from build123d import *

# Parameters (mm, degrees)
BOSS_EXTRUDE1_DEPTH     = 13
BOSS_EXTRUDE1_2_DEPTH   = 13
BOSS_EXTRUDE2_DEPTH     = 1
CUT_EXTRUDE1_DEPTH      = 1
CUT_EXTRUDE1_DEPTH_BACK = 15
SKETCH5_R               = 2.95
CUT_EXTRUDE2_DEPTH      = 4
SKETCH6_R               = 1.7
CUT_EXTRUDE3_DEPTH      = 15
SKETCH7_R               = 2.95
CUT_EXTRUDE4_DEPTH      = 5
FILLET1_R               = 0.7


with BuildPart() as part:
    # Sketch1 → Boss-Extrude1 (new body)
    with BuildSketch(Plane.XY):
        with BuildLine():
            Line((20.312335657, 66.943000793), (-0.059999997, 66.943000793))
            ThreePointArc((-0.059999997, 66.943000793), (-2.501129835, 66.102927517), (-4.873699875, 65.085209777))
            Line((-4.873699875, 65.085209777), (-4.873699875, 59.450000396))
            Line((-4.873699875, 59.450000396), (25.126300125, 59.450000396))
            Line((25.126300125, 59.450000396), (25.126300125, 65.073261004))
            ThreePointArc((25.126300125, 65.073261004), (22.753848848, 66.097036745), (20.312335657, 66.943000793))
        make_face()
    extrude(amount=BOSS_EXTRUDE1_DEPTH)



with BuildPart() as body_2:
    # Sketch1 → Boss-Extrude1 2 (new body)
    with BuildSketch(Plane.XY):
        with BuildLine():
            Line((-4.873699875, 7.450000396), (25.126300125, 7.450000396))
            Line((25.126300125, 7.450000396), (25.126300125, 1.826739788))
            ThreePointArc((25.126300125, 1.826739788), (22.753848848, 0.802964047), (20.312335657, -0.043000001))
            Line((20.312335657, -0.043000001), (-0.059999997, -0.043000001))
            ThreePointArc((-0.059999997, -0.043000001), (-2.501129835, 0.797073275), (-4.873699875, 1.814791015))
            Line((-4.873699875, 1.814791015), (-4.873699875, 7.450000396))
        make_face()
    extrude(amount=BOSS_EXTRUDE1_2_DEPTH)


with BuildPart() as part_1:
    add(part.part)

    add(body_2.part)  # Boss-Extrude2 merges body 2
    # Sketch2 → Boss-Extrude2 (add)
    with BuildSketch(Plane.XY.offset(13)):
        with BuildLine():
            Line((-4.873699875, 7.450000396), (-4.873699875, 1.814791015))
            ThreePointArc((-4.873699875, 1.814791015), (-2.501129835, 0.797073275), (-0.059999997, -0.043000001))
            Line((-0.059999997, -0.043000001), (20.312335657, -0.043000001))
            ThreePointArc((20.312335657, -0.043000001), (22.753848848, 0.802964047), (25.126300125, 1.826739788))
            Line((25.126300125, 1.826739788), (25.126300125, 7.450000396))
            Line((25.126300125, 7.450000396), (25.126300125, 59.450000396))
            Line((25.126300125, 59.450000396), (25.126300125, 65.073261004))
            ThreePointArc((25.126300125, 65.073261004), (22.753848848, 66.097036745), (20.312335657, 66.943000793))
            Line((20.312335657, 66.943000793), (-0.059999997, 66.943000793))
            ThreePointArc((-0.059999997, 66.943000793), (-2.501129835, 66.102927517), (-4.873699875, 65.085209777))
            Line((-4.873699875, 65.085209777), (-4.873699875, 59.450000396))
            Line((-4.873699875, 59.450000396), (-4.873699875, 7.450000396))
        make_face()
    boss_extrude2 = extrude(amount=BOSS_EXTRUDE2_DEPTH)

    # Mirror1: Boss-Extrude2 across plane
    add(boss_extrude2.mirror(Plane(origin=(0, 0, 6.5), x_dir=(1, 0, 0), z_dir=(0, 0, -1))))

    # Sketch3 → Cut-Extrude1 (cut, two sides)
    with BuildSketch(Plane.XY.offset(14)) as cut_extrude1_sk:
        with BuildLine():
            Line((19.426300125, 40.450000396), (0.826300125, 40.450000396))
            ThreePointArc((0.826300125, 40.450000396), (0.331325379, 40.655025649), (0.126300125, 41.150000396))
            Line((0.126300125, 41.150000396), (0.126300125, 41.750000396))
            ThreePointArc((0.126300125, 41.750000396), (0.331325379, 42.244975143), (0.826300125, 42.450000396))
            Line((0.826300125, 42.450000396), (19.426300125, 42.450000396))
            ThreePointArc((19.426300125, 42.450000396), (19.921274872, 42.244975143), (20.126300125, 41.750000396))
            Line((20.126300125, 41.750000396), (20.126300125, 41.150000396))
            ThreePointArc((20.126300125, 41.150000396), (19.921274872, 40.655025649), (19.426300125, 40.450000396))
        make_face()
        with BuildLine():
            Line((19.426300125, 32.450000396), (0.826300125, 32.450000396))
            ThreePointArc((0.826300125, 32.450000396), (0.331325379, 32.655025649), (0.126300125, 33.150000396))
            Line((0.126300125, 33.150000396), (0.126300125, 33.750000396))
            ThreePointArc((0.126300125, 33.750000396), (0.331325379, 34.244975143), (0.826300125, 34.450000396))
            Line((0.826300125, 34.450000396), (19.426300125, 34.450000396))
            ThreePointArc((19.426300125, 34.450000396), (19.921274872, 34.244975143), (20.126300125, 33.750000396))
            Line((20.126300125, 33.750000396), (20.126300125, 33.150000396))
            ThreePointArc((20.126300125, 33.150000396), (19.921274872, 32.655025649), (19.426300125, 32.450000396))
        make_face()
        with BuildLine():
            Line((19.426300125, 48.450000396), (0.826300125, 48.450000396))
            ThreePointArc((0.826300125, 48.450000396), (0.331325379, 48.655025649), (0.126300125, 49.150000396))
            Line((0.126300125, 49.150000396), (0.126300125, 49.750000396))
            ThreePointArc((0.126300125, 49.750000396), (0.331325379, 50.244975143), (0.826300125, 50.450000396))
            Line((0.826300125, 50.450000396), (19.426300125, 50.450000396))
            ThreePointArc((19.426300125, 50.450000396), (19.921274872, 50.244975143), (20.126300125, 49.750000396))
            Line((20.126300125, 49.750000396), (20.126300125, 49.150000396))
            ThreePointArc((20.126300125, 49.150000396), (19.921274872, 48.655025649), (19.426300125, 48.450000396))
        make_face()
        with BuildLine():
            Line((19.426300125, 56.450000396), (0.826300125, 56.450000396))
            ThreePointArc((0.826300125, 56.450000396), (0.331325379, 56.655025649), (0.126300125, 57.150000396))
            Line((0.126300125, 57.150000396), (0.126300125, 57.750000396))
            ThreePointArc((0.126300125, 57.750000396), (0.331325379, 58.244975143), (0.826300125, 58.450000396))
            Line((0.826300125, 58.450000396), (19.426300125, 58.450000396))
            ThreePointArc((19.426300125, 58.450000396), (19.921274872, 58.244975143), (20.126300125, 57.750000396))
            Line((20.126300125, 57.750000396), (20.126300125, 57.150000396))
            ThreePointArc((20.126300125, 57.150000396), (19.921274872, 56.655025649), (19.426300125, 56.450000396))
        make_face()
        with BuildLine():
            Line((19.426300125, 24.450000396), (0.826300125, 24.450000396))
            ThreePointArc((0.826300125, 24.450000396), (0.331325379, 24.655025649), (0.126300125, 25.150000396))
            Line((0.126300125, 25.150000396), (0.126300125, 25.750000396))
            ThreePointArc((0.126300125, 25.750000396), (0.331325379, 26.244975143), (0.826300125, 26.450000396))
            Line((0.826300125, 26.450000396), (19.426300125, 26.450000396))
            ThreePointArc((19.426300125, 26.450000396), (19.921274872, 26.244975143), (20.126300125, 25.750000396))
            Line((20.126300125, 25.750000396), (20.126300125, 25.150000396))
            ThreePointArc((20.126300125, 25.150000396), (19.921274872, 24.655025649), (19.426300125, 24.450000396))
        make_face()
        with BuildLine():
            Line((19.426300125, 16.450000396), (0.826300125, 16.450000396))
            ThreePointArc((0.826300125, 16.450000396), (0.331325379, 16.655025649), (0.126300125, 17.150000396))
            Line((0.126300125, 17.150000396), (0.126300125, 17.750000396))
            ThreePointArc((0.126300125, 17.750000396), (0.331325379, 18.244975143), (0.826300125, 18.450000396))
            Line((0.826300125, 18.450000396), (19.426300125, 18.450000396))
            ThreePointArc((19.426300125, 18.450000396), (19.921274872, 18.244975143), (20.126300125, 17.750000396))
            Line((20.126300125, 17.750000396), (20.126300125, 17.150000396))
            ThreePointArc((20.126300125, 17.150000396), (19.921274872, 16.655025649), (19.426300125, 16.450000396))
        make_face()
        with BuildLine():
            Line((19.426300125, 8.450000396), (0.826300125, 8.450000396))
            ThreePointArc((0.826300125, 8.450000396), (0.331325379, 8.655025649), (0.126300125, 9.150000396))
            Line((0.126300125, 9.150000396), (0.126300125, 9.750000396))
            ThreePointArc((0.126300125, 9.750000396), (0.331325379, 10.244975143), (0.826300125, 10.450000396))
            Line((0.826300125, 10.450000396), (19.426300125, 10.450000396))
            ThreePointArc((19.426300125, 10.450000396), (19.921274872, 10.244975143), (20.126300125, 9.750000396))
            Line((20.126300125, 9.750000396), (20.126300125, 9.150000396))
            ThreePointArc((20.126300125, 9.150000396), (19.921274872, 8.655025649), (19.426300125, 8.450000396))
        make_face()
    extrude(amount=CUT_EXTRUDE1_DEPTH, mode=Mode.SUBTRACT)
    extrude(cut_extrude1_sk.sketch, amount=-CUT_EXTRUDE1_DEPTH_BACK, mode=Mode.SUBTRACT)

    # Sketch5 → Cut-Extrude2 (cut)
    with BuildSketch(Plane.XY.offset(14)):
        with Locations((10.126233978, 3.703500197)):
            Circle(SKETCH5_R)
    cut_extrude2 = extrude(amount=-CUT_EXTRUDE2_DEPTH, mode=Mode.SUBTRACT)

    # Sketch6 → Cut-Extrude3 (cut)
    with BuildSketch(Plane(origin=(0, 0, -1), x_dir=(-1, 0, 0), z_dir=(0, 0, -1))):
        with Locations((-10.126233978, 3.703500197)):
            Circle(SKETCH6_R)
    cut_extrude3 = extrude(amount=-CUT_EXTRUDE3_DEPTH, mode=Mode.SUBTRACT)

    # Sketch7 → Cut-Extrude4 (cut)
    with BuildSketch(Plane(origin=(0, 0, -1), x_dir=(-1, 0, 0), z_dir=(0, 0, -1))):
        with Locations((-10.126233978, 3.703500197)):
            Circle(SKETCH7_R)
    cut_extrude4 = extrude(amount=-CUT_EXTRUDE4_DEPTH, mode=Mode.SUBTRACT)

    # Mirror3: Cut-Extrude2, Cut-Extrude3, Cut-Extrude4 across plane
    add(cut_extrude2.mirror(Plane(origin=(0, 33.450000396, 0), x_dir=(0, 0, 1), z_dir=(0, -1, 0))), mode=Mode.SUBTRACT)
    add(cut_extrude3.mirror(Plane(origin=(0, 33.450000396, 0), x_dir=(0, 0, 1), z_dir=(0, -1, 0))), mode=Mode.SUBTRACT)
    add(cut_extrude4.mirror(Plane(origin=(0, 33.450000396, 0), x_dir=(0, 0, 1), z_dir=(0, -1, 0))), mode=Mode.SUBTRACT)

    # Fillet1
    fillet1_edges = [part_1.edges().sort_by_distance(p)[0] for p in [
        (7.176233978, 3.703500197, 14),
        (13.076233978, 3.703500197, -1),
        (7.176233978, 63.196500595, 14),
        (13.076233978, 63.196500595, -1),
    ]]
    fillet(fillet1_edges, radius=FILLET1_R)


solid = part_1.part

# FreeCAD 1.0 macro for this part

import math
import FreeCAD as App
import Part
import Sketcher
from FreeCAD import Vector
Q = App.Units.Quantity


def edges_at(feature, points):
    """Names of the edges that pass closest to the given points."""
    edges = feature.Shape.Edges
    near = lambda p: min(range(len(edges)), key=lambda i: edges[i].distToShape(Part.Vertex(*p))[0])
    return sorted({f"Edge{near(p) + 1}" for p in points})

doc = App.newDocument("Part")
body = doc.addObject("PartDesign::Body", "Body")

# Sketch on XY plane
sketch1 = body.newObject("Sketcher::SketchObject", "Sketch")
sketch1.AttachmentSupport = (doc.getObject("XY_Plane"), [""])
sketch1.MapMode = "FlatFace"
sketch1.addGeometry([
    Part.LineSegment(Vector(20, 67, 0), Vector(0, 67, 0)),  # 0
    Part.ArcOfCircle(Part.Circle(Vector(10, 33, 0), Vector(0, 0, 1), 35), math.radians(106.88), math.radians(115.33)),  # 1
    Part.LineSegment(Vector(-5, 65, 0), Vector(-5, 59, 0)),  # 2
    Part.LineSegment(Vector(-5, 59, 0), Vector(25, 59, 0)),  # 3
    Part.LineSegment(Vector(25, 59, 0), Vector(25, 65, 0)),  # 4
    Part.ArcOfCircle(Part.Circle(Vector(10, 33, 0), Vector(0, 0, 1), 35), math.radians(64.54), math.radians(73)),  # 5
], False)
sketch1.addConstraint([
    Sketcher.Constraint("Coincident", 0, 2, 1, 1),
    Sketcher.Constraint("Coincident", 1, 2, 2, 1),
    Sketcher.Constraint("Coincident", 2, 2, 3, 1),
    Sketcher.Constraint("Coincident", 3, 2, 4, 1),
    Sketcher.Constraint("Coincident", 4, 2, 5, 1),
    Sketcher.Constraint("Coincident", 5, 2, 0, 1),
    Sketcher.Constraint("Horizontal", 0),
    Sketcher.Constraint("Vertical", 2),
    Sketcher.Constraint("Horizontal", 3),
    Sketcher.Constraint("Vertical", 4),
    Sketcher.Constraint("Equal", 1, 5),
    Sketcher.Constraint("DistanceX", 3, 1, 3, 2, Q("30 mm")),
    Sketcher.Constraint("DistanceX", 0, 2, -1, 1, Q("0.06 mm")),
    Sketcher.Constraint("DistanceY", -1, 1, 2, 2, Q("59.45 mm")),
    Sketcher.Constraint("Radius", 1, Q("35.001581 mm")),
    Sketcher.Constraint("DistanceY", -1, 1, 0, 2, Q("66.943001 mm")),
    Sketcher.Constraint("DistanceY", 2, 2, 2, 1, Q("5.635209 mm")),
    Sketcher.Constraint("DistanceY", 4, 1, 4, 2, Q("5.623261 mm")),
    Sketcher.Constraint("DistanceX", 1, 2, -1, 1, Q("4.8737 mm")),
    Sketcher.Constraint("DistanceX", 0, 2, 0, 1, Q("20.372336 mm")),
])
pad1 = body.newObject("PartDesign::Pad", "Pad")
pad1.Profile = sketch1
pad1.Length = 13
body2 = doc.addObject("PartDesign::Body", "Body001")

# Sketch on XY plane
sketch2 = body2.newObject("Sketcher::SketchObject", "Sketch001")
sketch2.AttachmentSupport = (doc.getObject("XY_Plane001"), [""])
sketch2.MapMode = "FlatFace"
sketch2.addGeometry([
    Part.LineSegment(Vector(25, 7, 0), Vector(-5, 7, 0)),  # 0
    Part.LineSegment(Vector(-5, 7, 0), Vector(-5, 2, 0)),  # 1
    Part.ArcOfCircle(Part.Circle(Vector(10, 33, 0), Vector(0, 0, 1), 35), math.radians(-115.33), math.radians(-106.88)),  # 2
    Part.LineSegment(Vector(0, 0, 0), Vector(20, 0, 0)),  # 3
    Part.ArcOfCircle(Part.Circle(Vector(10, 33, 0), Vector(0, 0, 1), 35), math.radians(-73), math.radians(-64.54)),  # 4
    Part.LineSegment(Vector(25, 2, 0), Vector(25, 7, 0)),  # 5
], False)
sketch2.addConstraint([
    Sketcher.Constraint("Coincident", 0, 2, 1, 1),
    Sketcher.Constraint("Coincident", 1, 2, 2, 1),
    Sketcher.Constraint("Coincident", 2, 2, 3, 1),
    Sketcher.Constraint("Coincident", 3, 2, 4, 1),
    Sketcher.Constraint("Coincident", 4, 2, 5, 1),
    Sketcher.Constraint("Coincident", 5, 2, 0, 1),
    Sketcher.Constraint("Horizontal", 0),
    Sketcher.Constraint("Vertical", 1),
    Sketcher.Constraint("Horizontal", 3),
    Sketcher.Constraint("Vertical", 5),
    Sketcher.Constraint("Equal", 2, 4),
    Sketcher.Constraint("DistanceX", 0, 2, 0, 1, Q("30 mm")),
    Sketcher.Constraint("DistanceY", -1, 1, 0, 2, Q("7.45 mm")),
    Sketcher.Constraint("DistanceX", 2, 2, -1, 1, Q("0.06 mm")),
    Sketcher.Constraint("Radius", 2, Q("35.001581 mm")),
    Sketcher.Constraint("DistanceY", 2, 2, -1, 1, Q("0.043 mm")),
    Sketcher.Constraint("DistanceY", 1, 2, 1, 1, Q("5.635209 mm")),
    Sketcher.Constraint("DistanceY", 5, 1, 5, 2, Q("5.623261 mm")),
    Sketcher.Constraint("DistanceX", 0, 2, -1, 1, Q("4.8737 mm")),
    Sketcher.Constraint("DistanceX", 4, 3, 3, 2, Q("10.230799 mm")),
])
pad2 = body2.newObject("PartDesign::Pad", "Pad001")
pad2.Profile = sketch2
pad2.Length = 13
body.AllowCompound = True
doc.recompute()

boolean = body.newObject("PartDesign::Boolean", "Boolean")
boolean.Type = "Fuse"
boolean.addObjects([body2])

# Sketch on XY plane
sketch3 = body.newObject("Sketcher::SketchObject", "Sketch002")
sketch3.AttachmentSupport = (doc.getObject("XY_Plane"), [""])
sketch3.MapMode = "FlatFace"
sketch3.AttachmentOffset = App.Placement(Vector(0, 0, 13), App.Rotation())
sketch3.addGeometry([
    Part.ArcOfCircle(Part.Circle(Vector(10, 33, 0), Vector(0, 0, 1), 35), math.radians(-115.33), math.radians(-106.88)),  # 0
    Part.LineSegment(Vector(0, 0, 0), Vector(20, 0, 0)),  # 1
    Part.ArcOfCircle(Part.Circle(Vector(10, 33, 0), Vector(0, 0, 1), 35), math.radians(-73), math.radians(-64.54)),  # 2
    Part.LineSegment(Vector(25, 2, 0), Vector(25, 65, 0)),  # 3
    Part.ArcOfCircle(Part.Circle(Vector(10, 33, 0), Vector(0, 0, 1), 35), math.radians(64.54), math.radians(73)),  # 4
    Part.LineSegment(Vector(20, 67, 0), Vector(0, 67, 0)),  # 5
    Part.ArcOfCircle(Part.Circle(Vector(10, 33, 0), Vector(0, 0, 1), 35), math.radians(106.88), math.radians(115.33)),  # 6
    Part.LineSegment(Vector(-5, 65, 0), Vector(-5, 2, 0)),  # 7
], False)
sketch3.addConstraint([
    Sketcher.Constraint("Coincident", 0, 2, 1, 1),
    Sketcher.Constraint("Coincident", 1, 2, 2, 1),
    Sketcher.Constraint("Coincident", 2, 2, 3, 1),
    Sketcher.Constraint("Coincident", 3, 2, 4, 1),
    Sketcher.Constraint("Coincident", 4, 2, 5, 1),
    Sketcher.Constraint("Coincident", 5, 2, 6, 1),
    Sketcher.Constraint("Coincident", 6, 2, 7, 1),
    Sketcher.Constraint("Coincident", 7, 2, 0, 1),
    Sketcher.Constraint("Horizontal", 1),
    Sketcher.Constraint("Vertical", 3),
    Sketcher.Constraint("Horizontal", 5),
    Sketcher.Constraint("Vertical", 7),
    Sketcher.Constraint("Equal", 0, 2),
    Sketcher.Constraint("Equal", 2, 4),
    Sketcher.Constraint("Equal", 4, 6),
    Sketcher.Constraint("Vertical", 2, 3, 4, 3),
    Sketcher.Constraint("Vertical", 0, 3, 6, 3),
    Sketcher.Constraint("Vertical", 1, 2, 4, 2),
    Sketcher.Constraint("Vertical", 0, 2, 5, 2),
    Sketcher.Constraint("DistanceX", 6, 2, 3, 2, Q("30 mm")),
    Sketcher.Constraint("DistanceX", 0, 2, -1, 1, Q("0.06 mm")),
    Sketcher.Constraint("Radius", 0, Q("35.001581 mm")),
    Sketcher.Constraint("DistanceY", 0, 2, -1, 1, Q("0.043 mm")),
    Sketcher.Constraint("DistanceY", -1, 1, 4, 2, Q("66.943001 mm")),
    Sketcher.Constraint("DistanceY", 3, 1, 3, 2, Q("63.246521 mm")),
    Sketcher.Constraint("DistanceY", 7, 2, 7, 1, Q("63.270419 mm")),
    Sketcher.Constraint("DistanceX", -1, 1, 2, 2, Q("25.1263 mm")),
    Sketcher.Constraint("DistanceX", 2, 3, 1, 2, Q("10.230799 mm")),
])
pad3 = body.newObject("PartDesign::Pad", "Pad002")
pad3.Profile = sketch3
pad3.Length = 1
doc.recompute()

datumplane = body.newObject("PartDesign::Plane", "DatumPlane")
datumplane.AttachmentSupport = (doc.getObject("XY_Plane"), [""])
datumplane.MapMode = "FlatFace"
datumplane.AttachmentOffset = App.Placement(Vector(0, 0, 6.5), App.Rotation())
mirrored = body.newObject("PartDesign::Mirrored", "Mirrored")
mirrored.Originals = [pad3]
mirrored.MirrorPlane = (datumplane, [""])
body.Tip = mirrored

# Sketch on XY plane
sketch4 = body.newObject("Sketcher::SketchObject", "Sketch003")
sketch4.AttachmentSupport = (doc.getObject("XY_Plane"), [""])
sketch4.MapMode = "FlatFace"
sketch4.AttachmentOffset = App.Placement(Vector(0, 0, 14), App.Rotation())
sketch4.addGeometry([
    Part.LineSegment(Vector(0.8, 40.5, 0), Vector(19.4, 40.5, 0)),  # 0
    Part.ArcOfCircle(Part.Circle(Vector(19.4, 41.2, 0), Vector(0, 0, 1), 0.7), math.radians(-90), math.radians(0)),  # 1
    Part.LineSegment(Vector(20.1, 41.2, 0), Vector(20.1, 41.8, 0)),  # 2
    Part.ArcOfCircle(Part.Circle(Vector(19.4, 41.8, 0), Vector(0, 0, 1), 0.7), math.radians(0), math.radians(90)),  # 3
    Part.LineSegment(Vector(19.4, 42.5, 0), Vector(0.8, 42.5, 0)),  # 4
    Part.ArcOfCircle(Part.Circle(Vector(0.8, 41.8, 0), Vector(0, 0, 1), 0.7), math.radians(90), math.radians(180)),  # 5
    Part.LineSegment(Vector(0.1, 41.8, 0), Vector(0.1, 41.2, 0)),  # 6
    Part.ArcOfCircle(Part.Circle(Vector(0.8, 41.2, 0), Vector(0, 0, 1), 0.7), math.radians(-180), math.radians(-90)),  # 7
    Part.LineSegment(Vector(0.8, 32.5, 0), Vector(19.4, 32.5, 0)),  # 8
    Part.ArcOfCircle(Part.Circle(Vector(19.4, 33.2, 0), Vector(0, 0, 1), 0.7), math.radians(-90), math.radians(0)),  # 9
    Part.LineSegment(Vector(20.1, 33.2, 0), Vector(20.1, 33.8, 0)),  # 10
    Part.ArcOfCircle(Part.Circle(Vector(19.4, 33.8, 0), Vector(0, 0, 1), 0.7), math.radians(0), math.radians(90)),  # 11
    Part.LineSegment(Vector(19.4, 34.5, 0), Vector(0.8, 34.5, 0)),  # 12
    Part.ArcOfCircle(Part.Circle(Vector(0.8, 33.8, 0), Vector(0, 0, 1), 0.7), math.radians(90), math.radians(180)),  # 13
    Part.LineSegment(Vector(0.1, 33.8, 0), Vector(0.1, 33.2, 0)),  # 14
    Part.ArcOfCircle(Part.Circle(Vector(0.8, 33.2, 0), Vector(0, 0, 1), 0.7), math.radians(-180), math.radians(-90)),  # 15
    Part.LineSegment(Vector(0.8, 48.5, 0), Vector(19.4, 48.5, 0)),  # 16
    Part.ArcOfCircle(Part.Circle(Vector(19.4, 49.2, 0), Vector(0, 0, 1), 0.7), math.radians(-90), math.radians(0)),  # 17
    Part.LineSegment(Vector(20.1, 49.2, 0), Vector(20.1, 49.8, 0)),  # 18
    Part.ArcOfCircle(Part.Circle(Vector(19.4, 49.8, 0), Vector(0, 0, 1), 0.7), math.radians(0), math.radians(90)),  # 19
    Part.LineSegment(Vector(19.4, 50.5, 0), Vector(0.8, 50.5, 0)),  # 20
    Part.ArcOfCircle(Part.Circle(Vector(0.8, 49.8, 0), Vector(0, 0, 1), 0.7), math.radians(90), math.radians(180)),  # 21
    Part.LineSegment(Vector(0.1, 49.8, 0), Vector(0.1, 49.2, 0)),  # 22
    Part.ArcOfCircle(Part.Circle(Vector(0.8, 49.2, 0), Vector(0, 0, 1), 0.7), math.radians(-180), math.radians(-90)),  # 23
    Part.LineSegment(Vector(0.8, 56.5, 0), Vector(19.4, 56.5, 0)),  # 24
    Part.ArcOfCircle(Part.Circle(Vector(19.4, 57.2, 0), Vector(0, 0, 1), 0.7), math.radians(-90), math.radians(0)),  # 25
    Part.LineSegment(Vector(20.1, 57.2, 0), Vector(20.1, 57.8, 0)),  # 26
    Part.ArcOfCircle(Part.Circle(Vector(19.4, 57.8, 0), Vector(0, 0, 1), 0.7), math.radians(0), math.radians(90)),  # 27
    Part.LineSegment(Vector(19.4, 58.5, 0), Vector(0.8, 58.5, 0)),  # 28
    Part.ArcOfCircle(Part.Circle(Vector(0.8, 57.8, 0), Vector(0, 0, 1), 0.7), math.radians(90), math.radians(180)),  # 29
    Part.LineSegment(Vector(0.1, 57.8, 0), Vector(0.1, 57.2, 0)),  # 30
    Part.ArcOfCircle(Part.Circle(Vector(0.8, 57.2, 0), Vector(0, 0, 1), 0.7), math.radians(-180), math.radians(-90)),  # 31
    Part.LineSegment(Vector(0.8, 24.5, 0), Vector(19.4, 24.5, 0)),  # 32
    Part.ArcOfCircle(Part.Circle(Vector(19.4, 25.2, 0), Vector(0, 0, 1), 0.7), math.radians(-90), math.radians(0)),  # 33
    Part.LineSegment(Vector(20.1, 25.2, 0), Vector(20.1, 25.8, 0)),  # 34
    Part.ArcOfCircle(Part.Circle(Vector(19.4, 25.8, 0), Vector(0, 0, 1), 0.7), math.radians(0), math.radians(90)),  # 35
    Part.LineSegment(Vector(19.4, 26.5, 0), Vector(0.8, 26.5, 0)),  # 36
    Part.ArcOfCircle(Part.Circle(Vector(0.8, 25.8, 0), Vector(0, 0, 1), 0.7), math.radians(90), math.radians(180)),  # 37
    Part.LineSegment(Vector(0.1, 25.8, 0), Vector(0.1, 25.2, 0)),  # 38
    Part.ArcOfCircle(Part.Circle(Vector(0.8, 25.2, 0), Vector(0, 0, 1), 0.7), math.radians(-180), math.radians(-90)),  # 39
    Part.LineSegment(Vector(0.8, 16.5, 0), Vector(19.4, 16.5, 0)),  # 40
    Part.ArcOfCircle(Part.Circle(Vector(19.4, 17.2, 0), Vector(0, 0, 1), 0.7), math.radians(-90), math.radians(0)),  # 41
    Part.LineSegment(Vector(20.1, 17.2, 0), Vector(20.1, 17.8, 0)),  # 42
    Part.ArcOfCircle(Part.Circle(Vector(19.4, 17.8, 0), Vector(0, 0, 1), 0.7), math.radians(0), math.radians(90)),  # 43
    Part.LineSegment(Vector(19.4, 18.5, 0), Vector(0.8, 18.5, 0)),  # 44
    Part.ArcOfCircle(Part.Circle(Vector(0.8, 17.8, 0), Vector(0, 0, 1), 0.7), math.radians(90), math.radians(180)),  # 45
    Part.LineSegment(Vector(0.1, 17.8, 0), Vector(0.1, 17.2, 0)),  # 46
    Part.ArcOfCircle(Part.Circle(Vector(0.8, 17.2, 0), Vector(0, 0, 1), 0.7), math.radians(-180), math.radians(-90)),  # 47
    Part.LineSegment(Vector(0.8, 8.5, 0), Vector(19.4, 8.5, 0)),  # 48
    Part.ArcOfCircle(Part.Circle(Vector(19.4, 9.2, 0), Vector(0, 0, 1), 0.7), math.radians(-90), math.radians(0)),  # 49
    Part.LineSegment(Vector(20.1, 9.2, 0), Vector(20.1, 9.8, 0)),  # 50
    Part.ArcOfCircle(Part.Circle(Vector(19.4, 9.8, 0), Vector(0, 0, 1), 0.7), math.radians(0), math.radians(90)),  # 51
    Part.LineSegment(Vector(19.4, 10.5, 0), Vector(0.8, 10.5, 0)),  # 52
    Part.ArcOfCircle(Part.Circle(Vector(0.8, 9.8, 0), Vector(0, 0, 1), 0.7), math.radians(90), math.radians(180)),  # 53
    Part.LineSegment(Vector(0.1, 9.8, 0), Vector(0.1, 9.2, 0)),  # 54
    Part.ArcOfCircle(Part.Circle(Vector(0.8, 9.2, 0), Vector(0, 0, 1), 0.7), math.radians(-180), math.radians(-90)),  # 55
], False)
sketch4.addConstraint([
    Sketcher.Constraint("Tangent", 0, 2, 1, 1),
    Sketcher.Constraint("Tangent", 1, 2, 2, 1),
    Sketcher.Constraint("Tangent", 2, 2, 3, 1),
    Sketcher.Constraint("Tangent", 3, 2, 4, 1),
    Sketcher.Constraint("Tangent", 4, 2, 5, 1),
    Sketcher.Constraint("Tangent", 5, 2, 6, 1),
    Sketcher.Constraint("Tangent", 6, 2, 7, 1),
    Sketcher.Constraint("Tangent", 7, 2, 0, 1),
    Sketcher.Constraint("Tangent", 8, 2, 9, 1),
    Sketcher.Constraint("Tangent", 9, 2, 10, 1),
    Sketcher.Constraint("Tangent", 10, 2, 11, 1),
    Sketcher.Constraint("Tangent", 11, 2, 12, 1),
    Sketcher.Constraint("Tangent", 12, 2, 13, 1),
    Sketcher.Constraint("Tangent", 13, 2, 14, 1),
    Sketcher.Constraint("Tangent", 14, 2, 15, 1),
    Sketcher.Constraint("Tangent", 15, 2, 8, 1),
    Sketcher.Constraint("Tangent", 16, 2, 17, 1),
    Sketcher.Constraint("Tangent", 17, 2, 18, 1),
    Sketcher.Constraint("Tangent", 18, 2, 19, 1),
    Sketcher.Constraint("Tangent", 19, 2, 20, 1),
    Sketcher.Constraint("Tangent", 20, 2, 21, 1),
    Sketcher.Constraint("Tangent", 21, 2, 22, 1),
    Sketcher.Constraint("Tangent", 22, 2, 23, 1),
    Sketcher.Constraint("Tangent", 23, 2, 16, 1),
    Sketcher.Constraint("Tangent", 24, 2, 25, 1),
    Sketcher.Constraint("Tangent", 25, 2, 26, 1),
    Sketcher.Constraint("Tangent", 26, 2, 27, 1),
    Sketcher.Constraint("Tangent", 27, 2, 28, 1),
    Sketcher.Constraint("Tangent", 28, 2, 29, 1),
    Sketcher.Constraint("Tangent", 29, 2, 30, 1),
    Sketcher.Constraint("Tangent", 30, 2, 31, 1),
    Sketcher.Constraint("Tangent", 31, 2, 24, 1),
    Sketcher.Constraint("Tangent", 32, 2, 33, 1),
    Sketcher.Constraint("Tangent", 33, 2, 34, 1),
    Sketcher.Constraint("Tangent", 34, 2, 35, 1),
    Sketcher.Constraint("Tangent", 35, 2, 36, 1),
    Sketcher.Constraint("Tangent", 36, 2, 37, 1),
    Sketcher.Constraint("Tangent", 37, 2, 38, 1),
    Sketcher.Constraint("Tangent", 38, 2, 39, 1),
    Sketcher.Constraint("Tangent", 39, 2, 32, 1),
    Sketcher.Constraint("Tangent", 40, 2, 41, 1),
    Sketcher.Constraint("Tangent", 41, 2, 42, 1),
    Sketcher.Constraint("Tangent", 42, 2, 43, 1),
    Sketcher.Constraint("Tangent", 43, 2, 44, 1),
    Sketcher.Constraint("Tangent", 44, 2, 45, 1),
    Sketcher.Constraint("Tangent", 45, 2, 46, 1),
    Sketcher.Constraint("Tangent", 46, 2, 47, 1),
    Sketcher.Constraint("Tangent", 47, 2, 40, 1),
    Sketcher.Constraint("Tangent", 48, 2, 49, 1),
    Sketcher.Constraint("Tangent", 49, 2, 50, 1),
    Sketcher.Constraint("Tangent", 50, 2, 51, 1),
    Sketcher.Constraint("Tangent", 51, 2, 52, 1),
    Sketcher.Constraint("Tangent", 52, 2, 53, 1),
    Sketcher.Constraint("Tangent", 53, 2, 54, 1),
    Sketcher.Constraint("Tangent", 54, 2, 55, 1),
    Sketcher.Constraint("Tangent", 55, 2, 48, 1),
    Sketcher.Constraint("Horizontal", 0),
    Sketcher.Constraint("Vertical", 2),
    Sketcher.Constraint("Horizontal", 4),
    Sketcher.Constraint("Vertical", 6),
    Sketcher.Constraint("Horizontal", 8),
    Sketcher.Constraint("Vertical", 10),
    Sketcher.Constraint("Horizontal", 12),
    Sketcher.Constraint("Vertical", 14),
    Sketcher.Constraint("Horizontal", 16),
    Sketcher.Constraint("Vertical", 18),
    Sketcher.Constraint("Horizontal", 20),
    Sketcher.Constraint("Vertical", 22),
    Sketcher.Constraint("Horizontal", 24),
    Sketcher.Constraint("Vertical", 26),
    Sketcher.Constraint("Horizontal", 28),
    Sketcher.Constraint("Vertical", 30),
    Sketcher.Constraint("Horizontal", 32),
    Sketcher.Constraint("Vertical", 34),
    Sketcher.Constraint("Horizontal", 36),
    Sketcher.Constraint("Vertical", 38),
    Sketcher.Constraint("Horizontal", 40),
    Sketcher.Constraint("Vertical", 42),
    Sketcher.Constraint("Horizontal", 44),
    Sketcher.Constraint("Vertical", 46),
    Sketcher.Constraint("Horizontal", 48),
    Sketcher.Constraint("Vertical", 50),
    Sketcher.Constraint("Horizontal", 52),
    Sketcher.Constraint("Vertical", 54),
    Sketcher.Constraint("Equal", 1, 3),
    Sketcher.Constraint("Equal", 3, 5),
    Sketcher.Constraint("Equal", 5, 7),
    Sketcher.Constraint("Equal", 7, 9),
    Sketcher.Constraint("Equal", 9, 11),
    Sketcher.Constraint("Equal", 11, 13),
    Sketcher.Constraint("Equal", 13, 15),
    Sketcher.Constraint("Equal", 15, 17),
    Sketcher.Constraint("Equal", 17, 19),
    Sketcher.Constraint("Equal", 19, 21),
    Sketcher.Constraint("Equal", 21, 23),
    Sketcher.Constraint("Equal", 23, 25),
    Sketcher.Constraint("Equal", 25, 27),
    Sketcher.Constraint("Equal", 27, 29),
    Sketcher.Constraint("Equal", 29, 31),
    Sketcher.Constraint("Equal", 31, 33),
    Sketcher.Constraint("Equal", 33, 35),
    Sketcher.Constraint("Equal", 35, 37),
    Sketcher.Constraint("Equal", 37, 39),
    Sketcher.Constraint("Equal", 39, 41),
    Sketcher.Constraint("Equal", 41, 43),
    Sketcher.Constraint("Equal", 43, 45),
    Sketcher.Constraint("Equal", 45, 47),
    Sketcher.Constraint("Equal", 47, 49),
    Sketcher.Constraint("Equal", 49, 51),
    Sketcher.Constraint("Equal", 51, 53),
    Sketcher.Constraint("Equal", 53, 55),
    Sketcher.Constraint("Vertical", 3, 3, 9, 3),
    Sketcher.Constraint("Vertical", 7, 3, 13, 3),
    Sketcher.Constraint("Vertical", 11, 3, 17, 3),
    Sketcher.Constraint("Vertical", 15, 3, 21, 3),
    Sketcher.Constraint("Vertical", 19, 3, 25, 3),
    Sketcher.Constraint("Vertical", 23, 3, 29, 3),
    Sketcher.Constraint("Vertical", 27, 3, 33, 3),
    Sketcher.Constraint("Vertical", 31, 3, 37, 3),
    Sketcher.Constraint("Vertical", 35, 3, 41, 3),
    Sketcher.Constraint("Vertical", 39, 3, 45, 3),
    Sketcher.Constraint("Vertical", 43, 3, 49, 3),
    Sketcher.Constraint("Vertical", 47, 3, 53, 3),
    Sketcher.Constraint("Equal", 6, 10),
    Sketcher.Constraint("Equal", 14, 18),
    Sketcher.Constraint("Equal", 22, 26),
    Sketcher.Constraint("Equal", 30, 34),
    Sketcher.Constraint("Equal", 38, 42),
    Sketcher.Constraint("Equal", 46, 50),
    Sketcher.Constraint("Radius", 1, Q("0.7 mm")),
    Sketcher.Constraint("DistanceX", 0, 1, 0, 2, Q("18.6 mm")),
    Sketcher.Constraint("DistanceY", 2, 1, 2, 2, Q("0.6 mm")),
    Sketcher.Constraint("DistanceY", -1, 1, 1, 3, Q("41.15 mm")),
    Sketcher.Constraint("DistanceY", -1, 1, 9, 3, Q("33.15 mm")),
    Sketcher.Constraint("DistanceY", -1, 1, 17, 3, Q("49.15 mm")),
    Sketcher.Constraint("DistanceY", -1, 1, 25, 3, Q("57.15 mm")),
    Sketcher.Constraint("DistanceY", -1, 1, 33, 3, Q("25.15 mm")),
    Sketcher.Constraint("DistanceY", -1, 1, 41, 3, Q("17.15 mm")),
    Sketcher.Constraint("DistanceY", -1, 1, 49, 3, Q("9.15 mm")),
    Sketcher.Constraint("DistanceX", -1, 1, 1, 3, Q("19.4263 mm")),
])
pocket1 = body.newObject("PartDesign::Pocket", "Pocket")
pocket1.Profile = sketch4
pocket1.Type = "ThroughAll"
pocket1.Midplane = True

# Sketch on XY plane
sketch5 = body.newObject("Sketcher::SketchObject", "Sketch004")
sketch5.AttachmentSupport = (doc.getObject("XY_Plane"), [""])
sketch5.MapMode = "FlatFace"
sketch5.AttachmentOffset = App.Placement(Vector(0, 0, 14), App.Rotation())
sketch5.addGeometry(Part.Circle(Vector(10.1, 3.7, 0), Vector(0, 0, 1), 3), False)
sketch5.addConstraint([
    Sketcher.Constraint("Diameter", 0, Q("5.9 mm")),
    Sketcher.Constraint("DistanceY", -1, 1, 0, 3, Q("3.7035 mm")),
    Sketcher.Constraint("DistanceX", -1, 1, 0, 3, Q("10.126234 mm")),
])
pocket2 = body.newObject("PartDesign::Pocket", "Pocket001")
pocket2.Profile = sketch5
pocket2.Length = 4

# Sketch on XY plane
sketch6 = body.newObject("Sketcher::SketchObject", "Sketch005")
sketch6.AttachmentSupport = (doc.getObject("XY_Plane"), [""])
sketch6.MapMode = "FlatFace"
sketch6.AttachmentOffset = App.Placement(Vector(0, 0, -1), App.Rotation())
sketch6.addGeometry(Part.Circle(Vector(10.1, 3.7, 0), Vector(0, 0, 1), 1.7), False)
sketch6.addConstraint([
    Sketcher.Constraint("Diameter", 0, Q("3.4 mm")),
    Sketcher.Constraint("DistanceY", -1, 1, 0, 3, Q("3.7035 mm")),
    Sketcher.Constraint("DistanceX", -1, 1, 0, 3, Q("10.126234 mm")),
])
pocket3 = body.newObject("PartDesign::Pocket", "Pocket002")
pocket3.Profile = sketch6
pocket3.Length = 15
pocket3.Reversed = True

# Sketch on XY plane
sketch7 = body.newObject("Sketcher::SketchObject", "Sketch006")
sketch7.AttachmentSupport = (doc.getObject("XY_Plane"), [""])
sketch7.MapMode = "FlatFace"
sketch7.AttachmentOffset = App.Placement(Vector(0, 0, -1), App.Rotation())
sketch7.addGeometry(Part.Circle(Vector(10.1, 3.7, 0), Vector(0, 0, 1), 3), False)
sketch7.addConstraint([
    Sketcher.Constraint("Diameter", 0, Q("5.9 mm")),
    Sketcher.Constraint("DistanceY", -1, 1, 0, 3, Q("3.7035 mm")),
    Sketcher.Constraint("DistanceX", -1, 1, 0, 3, Q("10.126234 mm")),
])
pocket4 = body.newObject("PartDesign::Pocket", "Pocket003")
pocket4.Profile = sketch7
pocket4.Length = 5
pocket4.Reversed = True
doc.recompute()

datumplane2 = body.newObject("PartDesign::Plane", "DatumPlane001")
datumplane2.AttachmentSupport = (doc.getObject("XZ_Plane"), [""])
datumplane2.MapMode = "FlatFace"
datumplane2.AttachmentOffset = App.Placement(Vector(0, 0, -33.45), App.Rotation())
mirrored2 = body.newObject("PartDesign::Mirrored", "Mirrored001")
mirrored2.Originals = [pocket2, pocket3, pocket4]
mirrored2.MirrorPlane = (datumplane2, [""])
body.Tip = mirrored2
doc.recompute()

fillet = body.newObject("PartDesign::Fillet", "Fillet")
fillet.Base = (mirrored2, edges_at(mirrored2, [
    (7.176, 3.704, 14),
    (13.076, 3.704, -1),
    (7.176, 63.197, 14),
    (13.076, 63.197, -1),
]))
fillet.Radius = 0.7

doc.recompute()
